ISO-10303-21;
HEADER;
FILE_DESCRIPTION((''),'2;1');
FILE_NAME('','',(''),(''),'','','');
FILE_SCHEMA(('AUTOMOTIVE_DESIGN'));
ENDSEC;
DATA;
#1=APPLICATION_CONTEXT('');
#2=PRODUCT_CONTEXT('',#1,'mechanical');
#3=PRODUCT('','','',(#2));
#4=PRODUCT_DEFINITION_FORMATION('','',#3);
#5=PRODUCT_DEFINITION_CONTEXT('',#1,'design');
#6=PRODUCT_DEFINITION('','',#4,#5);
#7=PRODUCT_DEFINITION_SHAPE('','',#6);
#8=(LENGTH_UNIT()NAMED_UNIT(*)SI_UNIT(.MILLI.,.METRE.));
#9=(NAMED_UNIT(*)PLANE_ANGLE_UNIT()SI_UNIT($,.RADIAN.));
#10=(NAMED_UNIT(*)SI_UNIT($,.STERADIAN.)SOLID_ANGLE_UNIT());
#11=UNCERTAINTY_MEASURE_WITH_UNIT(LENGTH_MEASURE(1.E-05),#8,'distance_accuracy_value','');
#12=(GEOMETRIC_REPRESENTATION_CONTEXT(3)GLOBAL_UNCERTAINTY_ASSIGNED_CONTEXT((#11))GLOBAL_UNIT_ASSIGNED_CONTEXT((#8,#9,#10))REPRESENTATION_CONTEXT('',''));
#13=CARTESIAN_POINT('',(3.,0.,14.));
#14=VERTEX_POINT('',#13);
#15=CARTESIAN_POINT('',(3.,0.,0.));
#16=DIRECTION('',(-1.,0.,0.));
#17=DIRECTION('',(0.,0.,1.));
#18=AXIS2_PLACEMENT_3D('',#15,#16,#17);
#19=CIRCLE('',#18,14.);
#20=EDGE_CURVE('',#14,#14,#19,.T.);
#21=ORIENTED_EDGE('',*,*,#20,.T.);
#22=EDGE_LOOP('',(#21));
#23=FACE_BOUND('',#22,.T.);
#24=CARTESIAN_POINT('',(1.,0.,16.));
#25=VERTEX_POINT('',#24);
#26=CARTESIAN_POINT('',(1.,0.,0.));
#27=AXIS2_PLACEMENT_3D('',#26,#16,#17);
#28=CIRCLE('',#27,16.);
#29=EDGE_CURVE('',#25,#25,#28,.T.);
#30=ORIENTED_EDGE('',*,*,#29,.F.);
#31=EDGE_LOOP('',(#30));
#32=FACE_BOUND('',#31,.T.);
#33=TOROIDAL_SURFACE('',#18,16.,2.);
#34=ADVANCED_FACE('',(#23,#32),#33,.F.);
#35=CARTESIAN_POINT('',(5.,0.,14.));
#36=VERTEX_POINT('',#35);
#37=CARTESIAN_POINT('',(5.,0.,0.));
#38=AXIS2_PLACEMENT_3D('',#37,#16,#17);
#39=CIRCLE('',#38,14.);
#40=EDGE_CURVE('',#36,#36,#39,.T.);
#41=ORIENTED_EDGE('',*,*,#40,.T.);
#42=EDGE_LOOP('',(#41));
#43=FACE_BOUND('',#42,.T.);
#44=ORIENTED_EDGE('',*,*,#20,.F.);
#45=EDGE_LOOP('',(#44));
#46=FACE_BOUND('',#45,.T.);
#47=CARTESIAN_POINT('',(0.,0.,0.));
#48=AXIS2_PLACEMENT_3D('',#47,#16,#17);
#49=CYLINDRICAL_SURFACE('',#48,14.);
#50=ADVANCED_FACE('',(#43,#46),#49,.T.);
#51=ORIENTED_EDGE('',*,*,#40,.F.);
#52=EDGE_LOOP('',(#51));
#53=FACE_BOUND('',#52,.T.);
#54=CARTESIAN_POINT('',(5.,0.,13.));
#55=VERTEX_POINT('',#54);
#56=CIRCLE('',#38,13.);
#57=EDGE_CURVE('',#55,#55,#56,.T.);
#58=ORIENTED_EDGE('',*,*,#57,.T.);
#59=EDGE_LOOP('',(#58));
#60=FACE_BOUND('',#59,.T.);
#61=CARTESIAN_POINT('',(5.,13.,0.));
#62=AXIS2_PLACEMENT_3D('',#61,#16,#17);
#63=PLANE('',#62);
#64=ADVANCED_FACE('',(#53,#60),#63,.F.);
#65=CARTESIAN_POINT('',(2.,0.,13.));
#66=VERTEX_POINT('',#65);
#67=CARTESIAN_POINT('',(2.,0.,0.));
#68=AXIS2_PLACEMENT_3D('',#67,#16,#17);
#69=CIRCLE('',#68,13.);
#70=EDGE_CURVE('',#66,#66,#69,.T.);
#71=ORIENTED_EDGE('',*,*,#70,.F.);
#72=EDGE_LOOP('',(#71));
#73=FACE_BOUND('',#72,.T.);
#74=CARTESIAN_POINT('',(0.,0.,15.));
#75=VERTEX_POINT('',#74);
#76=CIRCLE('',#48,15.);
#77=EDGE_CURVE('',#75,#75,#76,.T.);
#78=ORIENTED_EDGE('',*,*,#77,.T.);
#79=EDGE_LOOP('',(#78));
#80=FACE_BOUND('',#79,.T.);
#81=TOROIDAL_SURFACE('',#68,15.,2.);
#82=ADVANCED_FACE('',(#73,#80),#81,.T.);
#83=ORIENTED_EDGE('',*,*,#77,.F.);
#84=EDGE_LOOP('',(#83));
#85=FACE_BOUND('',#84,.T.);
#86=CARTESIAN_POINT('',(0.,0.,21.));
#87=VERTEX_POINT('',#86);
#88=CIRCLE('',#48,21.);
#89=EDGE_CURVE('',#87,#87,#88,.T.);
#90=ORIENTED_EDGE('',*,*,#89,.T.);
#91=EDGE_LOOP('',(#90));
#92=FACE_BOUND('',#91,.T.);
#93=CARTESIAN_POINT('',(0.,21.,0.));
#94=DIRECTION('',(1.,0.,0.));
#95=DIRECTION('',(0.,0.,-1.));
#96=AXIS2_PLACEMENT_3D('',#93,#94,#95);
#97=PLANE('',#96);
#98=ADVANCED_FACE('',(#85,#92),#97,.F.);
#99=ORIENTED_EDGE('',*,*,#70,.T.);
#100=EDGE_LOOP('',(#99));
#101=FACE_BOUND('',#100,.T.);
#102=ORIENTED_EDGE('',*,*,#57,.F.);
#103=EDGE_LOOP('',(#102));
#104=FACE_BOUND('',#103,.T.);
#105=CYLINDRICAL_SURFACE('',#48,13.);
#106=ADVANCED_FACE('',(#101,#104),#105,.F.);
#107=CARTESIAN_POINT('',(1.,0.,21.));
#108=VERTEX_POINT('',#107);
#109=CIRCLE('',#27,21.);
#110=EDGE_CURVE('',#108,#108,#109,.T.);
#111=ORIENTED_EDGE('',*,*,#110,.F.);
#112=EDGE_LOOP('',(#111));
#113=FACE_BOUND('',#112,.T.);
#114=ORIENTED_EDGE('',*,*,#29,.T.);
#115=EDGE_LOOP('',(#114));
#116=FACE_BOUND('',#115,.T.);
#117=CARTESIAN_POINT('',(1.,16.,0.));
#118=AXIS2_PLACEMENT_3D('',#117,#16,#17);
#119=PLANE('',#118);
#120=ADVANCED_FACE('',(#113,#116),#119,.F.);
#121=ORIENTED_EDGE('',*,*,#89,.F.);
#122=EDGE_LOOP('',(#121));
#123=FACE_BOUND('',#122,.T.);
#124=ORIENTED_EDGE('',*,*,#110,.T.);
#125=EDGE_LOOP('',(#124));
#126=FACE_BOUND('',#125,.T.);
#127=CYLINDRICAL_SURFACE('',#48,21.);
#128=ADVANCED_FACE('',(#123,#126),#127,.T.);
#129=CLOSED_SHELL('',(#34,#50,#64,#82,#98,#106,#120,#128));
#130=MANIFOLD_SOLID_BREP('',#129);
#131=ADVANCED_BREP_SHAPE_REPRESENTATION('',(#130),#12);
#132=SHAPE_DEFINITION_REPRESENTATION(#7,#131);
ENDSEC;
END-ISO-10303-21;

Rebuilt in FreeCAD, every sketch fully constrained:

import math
import FreeCAD as App
import Part
import Sketcher
Q = App.Units.Quantity

doc = App.newDocument("Part")
params = doc.addObject("Spreadsheet::Sheet", "Params")
for row, (alias, value) in enumerate([
    ("sketch1_radius", "2 mm"),
    ("sketch1_width", "3 mm"),
    ("sketch1_width2", "2 mm"),
    ("sketch1_height", "6 mm"),
    ("revolution_angle", "360 deg"),
], start=1):
    params.set(f"A{row}", alias)
    params.set(f"B{row}", "=" + value)
    params.setAlias(f"B{row}", alias)

body = doc.addObject("PartDesign::Body", "Body")

# Sketch on XY plane
sketch1 = body.newObject("Sketcher::SketchObject", "Sketch")
sketch1.AttachmentSupport = (doc.getObject("XY_Plane"), [""])
sketch1.MapMode = "FlatFace"
sketch1.addGeometry(Part.LineSegment(App.Vector(0, 21, 0), App.Vector(0, 15, 0)), False)
sketch1.addGeometry(Part.ArcOfCircle(Part.Circle(App.Vector(2, 15, 0), App.Vector(0, 0, 1), 2), math.radians(-180), math.radians(-90)), False)
sketch1.addGeometry(Part.LineSegment(App.Vector(2, 13, 0), App.Vector(5, 13, 0)), False)
sketch1.addGeometry(Part.LineSegment(App.Vector(5, 13, 0), App.Vector(5, 14, 0)), False)
sketch1.addGeometry(Part.LineSegment(App.Vector(5, 14, 0), App.Vector(3, 14, 0)), False)
sketch1.addGeometry(Part.ArcOfCircle(Part.Circle(App.Vector(3, 16, 0), App.Vector(0, 0, 1), 2), math.radians(-180), math.radians(-90)), False)
sketch1.addGeometry(Part.LineSegment(App.Vector(1, 16, 0), App.Vector(1, 21, 0)), False)
sketch1.addGeometry(Part.LineSegment(App.Vector(1, 21, 0), App.Vector(0, 21, 0)), False)
sketch1.addConstraint(Sketcher.Constraint("Tangent", 0, 2, 1, 1))
sketch1.addConstraint(Sketcher.Constraint("Tangent", 1, 2, 2, 1))
sketch1.addConstraint(Sketcher.Constraint("Coincident", 2, 2, 3, 1))
sketch1.addConstraint(Sketcher.Constraint("Coincident", 3, 2, 4, 1))
sketch1.addConstraint(Sketcher.Constraint("Tangent", 4, 2, 5, 2))
sketch1.addConstraint(Sketcher.Constraint("Tangent", 5, 1, 6, 1))
sketch1.addConstraint(Sketcher.Constraint("Coincident", 6, 2, 7, 1))
sketch1.addConstraint(Sketcher.Constraint("Coincident", 7, 2, 0, 1))
sketch1.addConstraint(Sketcher.Constraint("Vertical", 0))
sketch1.addConstraint(Sketcher.Constraint("Horizontal", 2))
sketch1.addConstraint(Sketcher.Constraint("Vertical", 3))
sketch1.addConstraint(Sketcher.Constraint("Horizontal", 4))
sketch1.addConstraint(Sketcher.Constraint("Vertical", 6))
sketch1.addConstraint(Sketcher.Constraint("Horizontal", 7))
sketch1.addConstraint(Sketcher.Constraint("Equal", 1, 5))
sketch1.addConstraint(Sketcher.Constraint("PointOnObject", 0, 2, -2))
sketch1.addConstraint(Sketcher.Constraint("Equal", 7, 3))
sketch1.addConstraint(Sketcher.Constraint("Radius", 1, Q("2 mm")))
sketch1.addConstraint(Sketcher.Constraint("DistanceX", 2, 1, 2, 2, Q("3 mm")))
sketch1.addConstraint(Sketcher.Constraint("DistanceX", 4, 2, 4, 1, Q("2 mm")))
sketch1.addConstraint(Sketcher.Constraint("DistanceY", 0, 2, 0, 1, Q("6 mm")))
sketch1.addConstraint(Sketcher.Constraint("DistanceY", -1, 1, 1, 3, Q("15 mm")))
sketch1.setExpression("Constraints[17]", "Params.sketch1_radius")
sketch1.setExpression("Constraints[18]", "Params.sketch1_width")
sketch1.setExpression("Constraints[19]", "Params.sketch1_width2")
sketch1.setExpression("Constraints[20]", "Params.sketch1_height")
revolution = body.newObject("PartDesign::Revolution", "Revolution")
revolution.Profile = sketch1
revolution.ReferenceAxis = (sketch1, ["H_Axis"])
revolution.setExpression("Angle", "Params.revolution_angle")

doc.recompute()
